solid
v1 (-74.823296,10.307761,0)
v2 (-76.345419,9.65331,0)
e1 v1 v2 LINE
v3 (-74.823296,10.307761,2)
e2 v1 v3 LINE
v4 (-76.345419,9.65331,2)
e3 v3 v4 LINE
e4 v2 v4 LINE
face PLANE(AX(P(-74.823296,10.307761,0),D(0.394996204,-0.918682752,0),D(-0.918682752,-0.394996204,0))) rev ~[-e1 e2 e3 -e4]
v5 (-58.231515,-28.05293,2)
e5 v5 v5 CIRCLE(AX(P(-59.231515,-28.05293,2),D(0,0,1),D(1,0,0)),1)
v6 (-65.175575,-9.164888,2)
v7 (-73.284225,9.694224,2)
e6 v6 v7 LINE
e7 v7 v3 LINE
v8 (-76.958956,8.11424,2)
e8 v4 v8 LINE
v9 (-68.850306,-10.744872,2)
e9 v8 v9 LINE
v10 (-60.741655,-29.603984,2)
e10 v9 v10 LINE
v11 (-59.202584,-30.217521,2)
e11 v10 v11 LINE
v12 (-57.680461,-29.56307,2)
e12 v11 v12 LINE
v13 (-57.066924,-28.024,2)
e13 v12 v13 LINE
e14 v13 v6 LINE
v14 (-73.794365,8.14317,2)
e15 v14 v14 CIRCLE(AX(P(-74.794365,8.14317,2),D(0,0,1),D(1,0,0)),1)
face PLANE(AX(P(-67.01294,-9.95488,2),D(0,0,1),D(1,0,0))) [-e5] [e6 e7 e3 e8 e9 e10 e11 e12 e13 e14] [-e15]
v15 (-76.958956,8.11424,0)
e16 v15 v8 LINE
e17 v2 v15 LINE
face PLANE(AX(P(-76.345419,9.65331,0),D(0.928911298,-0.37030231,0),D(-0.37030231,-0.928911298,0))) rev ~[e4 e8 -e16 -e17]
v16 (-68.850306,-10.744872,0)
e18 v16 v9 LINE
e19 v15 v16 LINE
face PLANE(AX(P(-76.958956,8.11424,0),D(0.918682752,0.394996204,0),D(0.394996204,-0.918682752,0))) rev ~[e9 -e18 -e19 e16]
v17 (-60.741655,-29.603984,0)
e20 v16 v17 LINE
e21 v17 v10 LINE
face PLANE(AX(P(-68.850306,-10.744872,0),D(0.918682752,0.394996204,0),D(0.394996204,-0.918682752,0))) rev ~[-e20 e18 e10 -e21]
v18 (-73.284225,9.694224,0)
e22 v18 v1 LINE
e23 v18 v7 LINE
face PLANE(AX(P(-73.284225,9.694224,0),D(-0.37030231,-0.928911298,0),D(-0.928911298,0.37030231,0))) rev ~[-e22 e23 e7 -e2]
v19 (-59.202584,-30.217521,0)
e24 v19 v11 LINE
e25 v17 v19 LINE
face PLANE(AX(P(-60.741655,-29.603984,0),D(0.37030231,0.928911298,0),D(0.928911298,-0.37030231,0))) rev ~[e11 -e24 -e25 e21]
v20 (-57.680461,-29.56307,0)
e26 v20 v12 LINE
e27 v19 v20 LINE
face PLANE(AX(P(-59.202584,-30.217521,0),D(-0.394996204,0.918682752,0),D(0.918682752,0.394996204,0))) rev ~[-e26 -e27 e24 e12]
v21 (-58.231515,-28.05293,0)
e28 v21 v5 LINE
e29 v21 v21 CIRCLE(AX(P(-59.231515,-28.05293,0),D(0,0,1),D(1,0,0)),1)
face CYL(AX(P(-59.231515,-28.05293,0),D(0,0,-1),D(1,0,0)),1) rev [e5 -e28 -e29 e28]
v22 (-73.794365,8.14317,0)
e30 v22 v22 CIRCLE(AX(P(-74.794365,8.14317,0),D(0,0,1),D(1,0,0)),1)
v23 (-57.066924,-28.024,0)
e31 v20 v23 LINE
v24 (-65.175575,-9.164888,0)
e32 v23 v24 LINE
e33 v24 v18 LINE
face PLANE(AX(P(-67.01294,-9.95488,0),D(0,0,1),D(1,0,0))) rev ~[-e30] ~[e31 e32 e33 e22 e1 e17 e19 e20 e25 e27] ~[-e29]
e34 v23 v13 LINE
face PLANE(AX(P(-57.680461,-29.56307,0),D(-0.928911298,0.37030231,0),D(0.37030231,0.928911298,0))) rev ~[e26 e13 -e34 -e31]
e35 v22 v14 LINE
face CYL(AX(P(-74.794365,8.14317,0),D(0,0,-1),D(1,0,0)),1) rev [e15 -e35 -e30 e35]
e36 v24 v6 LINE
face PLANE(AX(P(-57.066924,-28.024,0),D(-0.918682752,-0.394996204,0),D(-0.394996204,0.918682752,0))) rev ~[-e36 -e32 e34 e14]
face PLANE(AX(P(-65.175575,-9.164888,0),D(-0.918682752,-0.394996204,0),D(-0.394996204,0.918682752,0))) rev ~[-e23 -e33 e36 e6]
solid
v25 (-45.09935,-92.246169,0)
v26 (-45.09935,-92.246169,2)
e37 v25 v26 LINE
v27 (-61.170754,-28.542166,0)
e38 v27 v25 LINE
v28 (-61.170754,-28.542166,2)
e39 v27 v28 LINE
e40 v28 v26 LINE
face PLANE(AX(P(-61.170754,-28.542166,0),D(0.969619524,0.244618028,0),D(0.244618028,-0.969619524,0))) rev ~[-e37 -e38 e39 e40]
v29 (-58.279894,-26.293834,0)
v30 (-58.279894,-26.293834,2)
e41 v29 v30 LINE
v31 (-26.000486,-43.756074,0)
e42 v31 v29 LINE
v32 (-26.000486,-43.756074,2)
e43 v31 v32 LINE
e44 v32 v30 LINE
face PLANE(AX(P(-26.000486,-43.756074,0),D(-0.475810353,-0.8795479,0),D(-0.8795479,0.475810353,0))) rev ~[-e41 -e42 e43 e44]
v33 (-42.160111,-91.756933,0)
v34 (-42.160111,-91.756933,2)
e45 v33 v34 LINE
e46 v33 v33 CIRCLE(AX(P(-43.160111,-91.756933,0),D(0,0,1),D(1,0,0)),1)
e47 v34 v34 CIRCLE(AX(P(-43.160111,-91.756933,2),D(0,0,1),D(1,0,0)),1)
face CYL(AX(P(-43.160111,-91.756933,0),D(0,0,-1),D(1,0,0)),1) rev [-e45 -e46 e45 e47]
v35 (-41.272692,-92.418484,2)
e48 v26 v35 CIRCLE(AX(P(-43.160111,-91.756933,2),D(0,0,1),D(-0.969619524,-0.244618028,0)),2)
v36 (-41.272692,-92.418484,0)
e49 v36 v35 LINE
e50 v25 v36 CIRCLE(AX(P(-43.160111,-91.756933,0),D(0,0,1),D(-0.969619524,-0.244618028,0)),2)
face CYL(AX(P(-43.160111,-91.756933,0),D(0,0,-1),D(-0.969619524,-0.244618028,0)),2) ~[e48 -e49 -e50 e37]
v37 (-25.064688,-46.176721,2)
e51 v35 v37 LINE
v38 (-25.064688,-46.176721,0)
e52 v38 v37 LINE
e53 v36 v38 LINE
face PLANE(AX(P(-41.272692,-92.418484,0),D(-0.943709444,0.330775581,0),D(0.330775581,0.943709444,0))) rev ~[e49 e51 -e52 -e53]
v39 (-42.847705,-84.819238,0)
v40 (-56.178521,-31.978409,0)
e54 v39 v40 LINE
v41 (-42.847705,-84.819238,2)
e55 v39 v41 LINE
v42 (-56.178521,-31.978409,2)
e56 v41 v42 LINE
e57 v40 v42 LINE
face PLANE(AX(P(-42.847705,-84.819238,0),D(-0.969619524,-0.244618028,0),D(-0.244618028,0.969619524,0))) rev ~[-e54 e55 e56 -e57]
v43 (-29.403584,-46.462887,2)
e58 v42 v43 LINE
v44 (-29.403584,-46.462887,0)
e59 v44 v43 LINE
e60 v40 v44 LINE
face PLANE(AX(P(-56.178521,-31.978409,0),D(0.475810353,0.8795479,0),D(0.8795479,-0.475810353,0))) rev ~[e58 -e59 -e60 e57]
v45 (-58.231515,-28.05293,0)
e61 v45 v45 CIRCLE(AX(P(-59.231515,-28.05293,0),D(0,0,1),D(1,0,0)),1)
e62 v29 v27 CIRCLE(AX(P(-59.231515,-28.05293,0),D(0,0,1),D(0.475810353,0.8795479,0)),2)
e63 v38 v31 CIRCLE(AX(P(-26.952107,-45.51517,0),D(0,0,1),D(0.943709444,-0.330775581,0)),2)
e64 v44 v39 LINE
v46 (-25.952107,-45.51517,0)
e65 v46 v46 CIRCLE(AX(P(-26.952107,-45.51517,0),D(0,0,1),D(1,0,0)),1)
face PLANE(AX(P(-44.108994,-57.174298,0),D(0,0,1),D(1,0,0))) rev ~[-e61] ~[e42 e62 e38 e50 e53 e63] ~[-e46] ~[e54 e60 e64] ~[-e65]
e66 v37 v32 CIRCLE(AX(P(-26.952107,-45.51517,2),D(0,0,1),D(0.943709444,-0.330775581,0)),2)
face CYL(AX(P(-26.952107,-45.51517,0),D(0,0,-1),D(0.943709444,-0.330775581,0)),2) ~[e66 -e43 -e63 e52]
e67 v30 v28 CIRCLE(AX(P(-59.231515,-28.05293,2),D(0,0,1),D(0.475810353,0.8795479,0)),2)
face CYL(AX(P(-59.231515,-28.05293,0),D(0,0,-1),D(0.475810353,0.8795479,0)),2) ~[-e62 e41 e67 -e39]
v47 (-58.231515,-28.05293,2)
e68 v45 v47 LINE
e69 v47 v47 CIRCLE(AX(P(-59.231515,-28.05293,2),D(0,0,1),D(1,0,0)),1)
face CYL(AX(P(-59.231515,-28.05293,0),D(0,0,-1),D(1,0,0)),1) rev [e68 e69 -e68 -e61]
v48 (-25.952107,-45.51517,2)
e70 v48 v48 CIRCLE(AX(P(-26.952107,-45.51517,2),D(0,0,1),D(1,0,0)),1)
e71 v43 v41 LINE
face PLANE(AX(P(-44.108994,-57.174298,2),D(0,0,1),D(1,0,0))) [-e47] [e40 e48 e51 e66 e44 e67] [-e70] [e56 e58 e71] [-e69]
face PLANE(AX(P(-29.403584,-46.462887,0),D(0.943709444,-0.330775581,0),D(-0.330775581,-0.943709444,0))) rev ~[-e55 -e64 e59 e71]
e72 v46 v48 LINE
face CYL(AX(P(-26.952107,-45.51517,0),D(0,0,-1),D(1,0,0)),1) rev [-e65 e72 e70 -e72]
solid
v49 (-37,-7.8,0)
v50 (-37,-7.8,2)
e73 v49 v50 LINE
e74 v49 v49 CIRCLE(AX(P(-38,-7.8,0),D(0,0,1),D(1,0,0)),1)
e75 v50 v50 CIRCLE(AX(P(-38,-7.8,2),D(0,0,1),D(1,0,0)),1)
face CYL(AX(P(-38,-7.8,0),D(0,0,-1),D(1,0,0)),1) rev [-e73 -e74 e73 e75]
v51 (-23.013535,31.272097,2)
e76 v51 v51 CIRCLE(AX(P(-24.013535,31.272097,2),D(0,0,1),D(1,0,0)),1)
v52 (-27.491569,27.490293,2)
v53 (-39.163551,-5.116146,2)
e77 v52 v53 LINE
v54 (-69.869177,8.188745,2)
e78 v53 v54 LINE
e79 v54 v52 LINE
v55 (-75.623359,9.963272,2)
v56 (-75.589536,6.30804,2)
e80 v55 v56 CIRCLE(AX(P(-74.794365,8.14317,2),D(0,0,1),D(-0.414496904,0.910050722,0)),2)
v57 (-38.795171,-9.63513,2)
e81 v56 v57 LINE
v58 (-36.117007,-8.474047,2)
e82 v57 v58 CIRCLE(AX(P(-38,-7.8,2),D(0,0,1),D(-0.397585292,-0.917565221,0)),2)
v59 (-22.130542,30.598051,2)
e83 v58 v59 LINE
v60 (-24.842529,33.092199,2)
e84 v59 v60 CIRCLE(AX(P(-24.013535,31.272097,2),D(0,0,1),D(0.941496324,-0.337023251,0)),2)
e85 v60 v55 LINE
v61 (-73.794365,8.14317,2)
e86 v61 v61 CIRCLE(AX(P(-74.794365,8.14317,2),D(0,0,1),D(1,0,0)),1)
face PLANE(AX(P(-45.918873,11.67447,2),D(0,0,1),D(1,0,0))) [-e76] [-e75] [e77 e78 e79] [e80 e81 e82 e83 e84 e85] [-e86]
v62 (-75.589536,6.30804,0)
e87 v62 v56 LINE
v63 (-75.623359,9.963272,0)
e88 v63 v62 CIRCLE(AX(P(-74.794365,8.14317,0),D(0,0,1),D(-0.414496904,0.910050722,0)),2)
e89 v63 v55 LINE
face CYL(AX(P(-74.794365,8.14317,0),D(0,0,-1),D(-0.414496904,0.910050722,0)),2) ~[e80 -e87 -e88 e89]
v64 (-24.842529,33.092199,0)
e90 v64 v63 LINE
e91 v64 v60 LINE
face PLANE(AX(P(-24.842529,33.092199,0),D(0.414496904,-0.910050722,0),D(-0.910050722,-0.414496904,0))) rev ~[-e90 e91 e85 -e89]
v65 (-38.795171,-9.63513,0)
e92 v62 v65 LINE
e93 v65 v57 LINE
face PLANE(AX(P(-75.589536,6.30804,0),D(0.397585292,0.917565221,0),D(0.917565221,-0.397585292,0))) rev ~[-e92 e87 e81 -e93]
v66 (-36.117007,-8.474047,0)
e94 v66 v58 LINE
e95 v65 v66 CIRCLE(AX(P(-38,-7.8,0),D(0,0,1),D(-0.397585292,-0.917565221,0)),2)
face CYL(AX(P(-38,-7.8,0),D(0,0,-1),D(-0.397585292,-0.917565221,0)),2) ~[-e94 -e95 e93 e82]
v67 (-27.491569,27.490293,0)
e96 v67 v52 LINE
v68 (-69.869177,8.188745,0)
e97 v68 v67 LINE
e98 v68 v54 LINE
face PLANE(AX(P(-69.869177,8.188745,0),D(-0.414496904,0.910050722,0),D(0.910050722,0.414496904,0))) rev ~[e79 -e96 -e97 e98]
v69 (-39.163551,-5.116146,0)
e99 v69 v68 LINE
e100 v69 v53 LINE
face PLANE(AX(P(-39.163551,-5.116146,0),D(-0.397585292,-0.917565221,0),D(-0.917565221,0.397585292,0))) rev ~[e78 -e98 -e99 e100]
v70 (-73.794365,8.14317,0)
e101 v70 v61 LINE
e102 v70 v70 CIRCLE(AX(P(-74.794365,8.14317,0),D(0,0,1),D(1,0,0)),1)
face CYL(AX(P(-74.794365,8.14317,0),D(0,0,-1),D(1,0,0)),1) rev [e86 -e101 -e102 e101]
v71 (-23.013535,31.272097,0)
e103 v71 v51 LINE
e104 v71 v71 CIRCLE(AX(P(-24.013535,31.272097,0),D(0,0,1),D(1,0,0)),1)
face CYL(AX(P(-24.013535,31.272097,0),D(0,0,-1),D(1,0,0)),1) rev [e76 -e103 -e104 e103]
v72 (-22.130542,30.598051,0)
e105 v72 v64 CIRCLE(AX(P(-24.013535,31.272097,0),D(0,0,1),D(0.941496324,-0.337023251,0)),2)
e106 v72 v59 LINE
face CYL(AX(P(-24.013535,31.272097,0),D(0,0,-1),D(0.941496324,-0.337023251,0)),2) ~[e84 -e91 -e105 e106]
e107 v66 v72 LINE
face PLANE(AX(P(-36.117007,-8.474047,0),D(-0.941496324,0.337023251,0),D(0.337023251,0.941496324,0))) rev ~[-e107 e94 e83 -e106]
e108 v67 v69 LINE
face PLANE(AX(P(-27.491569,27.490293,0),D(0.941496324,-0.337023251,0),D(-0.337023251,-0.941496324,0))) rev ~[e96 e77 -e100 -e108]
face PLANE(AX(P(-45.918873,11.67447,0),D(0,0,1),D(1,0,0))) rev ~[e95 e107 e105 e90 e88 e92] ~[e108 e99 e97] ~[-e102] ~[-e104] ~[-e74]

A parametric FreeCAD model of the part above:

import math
import FreeCAD as App
import Part
import Sketcher
Q = App.Units.Quantity


def add_polygon(sketch, points):
    """Adds a closed chain of lines whose ends are joined by coincident constraints."""
    first, n = sketch.GeometryCount, len(points)
    for a, b in zip(points, points[1:] + points[:1]):
        sketch.addGeometry(Part.LineSegment(App.Vector(*a, 0), App.Vector(*b, 0)), False)
    for i in range(n):
        sketch.addConstraint(Sketcher.Constraint("Coincident", first + i, 2, first + (i + 1) % n, 1))

doc = App.newDocument("Part")
body = doc.addObject("PartDesign::Body", "Body")

sketch1 = doc.addObject("Sketcher::SketchObject", "Sketch")
body.addObject(sketch1)
sketch1.AttachmentSupport = (doc.XY_Plane, [""])
sketch1.MapMode = "FlatFace"
sketch1.addGeometry(Part.LineSegment(App.Vector(-24.842529, 33.092199, 0), App.Vector(-75.623359, 9.963272, 0)), False)
sketch1.addGeometry(Part.ArcOfCircle(Part.Circle(App.Vector(-74.794365, 8.14317, 0), App.Vector(0, 0, 1), 2), math.radians(114.487638), math.radians(246.57269)), False)
sketch1.addGeometry(Part.LineSegment(App.Vector(-75.589536, 6.30804, 0), App.Vector(-38.795171, -9.63513, 0)), False)
sketch1.addGeometry(Part.ArcOfCircle(Part.Circle(App.Vector(-38, -7.8, 0), App.Vector(0, 0, 1), 2), math.radians(-113.42731), math.radians(-19.695618)), False)
sketch1.addGeometry(Part.LineSegment(App.Vector(-36.117007, -8.474047, 0), App.Vector(-22.130542, 30.598051, 0)), False)
sketch1.addGeometry(Part.ArcOfCircle(Part.Circle(App.Vector(-24.013535, 31.272097, 0), App.Vector(0, 0, 1), 2), math.radians(-19.695618), math.radians(114.487638)), False)
sketch1.addGeometry(Part.Circle(App.Vector(-74.794365, 8.14317, 0), App.Vector(0, 0, 1), 1), False)
sketch1.addGeometry(Part.Circle(App.Vector(-38, -7.8, 0), App.Vector(0, 0, 1), 1), False)
add_polygon(sketch1, [(-27.491569, 27.490293), (-39.163551, -5.116146), (-69.869177, 8.188745)])
sketch1.addGeometry(Part.Circle(App.Vector(-24.013535, 31.272097, 0), App.Vector(0, 0, 1), 1), False)
sketch1.addConstraint(Sketcher.Constraint("Tangent", 0, 2, 1, 1))
sketch1.addConstraint(Sketcher.Constraint("Tangent", 1, 2, 2, 1))
sketch1.addConstraint(Sketcher.Constraint("Tangent", 2, 2, 3, 1))
sketch1.addConstraint(Sketcher.Constraint("Tangent", 3, 2, 4, 1))
sketch1.addConstraint(Sketcher.Constraint("Tangent", 4, 2, 5, 1))
sketch1.addConstraint(Sketcher.Constraint("Tangent", 5, 2, 0, 1))
sketch1.addConstraint(Sketcher.Constraint("Coincident", 6, 3, 1, 3))
sketch1.addConstraint(Sketcher.Constraint("Coincident", 7, 3, 3, 3))
sketch1.addConstraint(Sketcher.Constraint("Coincident", 11, 3, 5, 3))
sketch1.addConstraint(Sketcher.Constraint("Equal", 1, 3))
sketch1.addConstraint(Sketcher.Constraint("Equal", 3, 5))
sketch1.addConstraint(Sketcher.Constraint("Equal", 6, 7))
sketch1.addConstraint(Sketcher.Constraint("Equal", 7, 11))
sketch1.addConstraint(Sketcher.Constraint("Parallel", 4, 8))
sketch1.addConstraint(Sketcher.Constraint("Parallel", 2, 9))
sketch1.addConstraint(Sketcher.Constraint("Parallel", 0, 10))
sketch1.addConstraint(Sketcher.Constraint("Diameter", 6, Q("2 mm")))
sketch1.addConstraint(Sketcher.Constraint("Radius", 1, Q("2 mm")))
sketch1.addConstraint(Sketcher.Constraint("DistanceX", 3, 3, -1, 1, Q("38 mm")))
sketch1.addConstraint(Sketcher.Constraint("Distance", 0, Q("55.8 mm")))
sketch1.addConstraint(Sketcher.Constraint("Distance", 2, Q("40.1 mm")))
sketch1.addConstraint(Sketcher.Constraint("Distance", 4, Q("41.5 mm")))
sketch1.addConstraint(Sketcher.Constraint("DistanceY", 3, 3, -1, 1, Q("7.8 mm")))
sketch1.addConstraint(Sketcher.Constraint("DistanceY", -1, 1, 5, 2, Q("33.092199 mm")))
sketch1.addConstraint(Sketcher.Constraint("DistanceY", 3, 2, 8, 2, Q("3.3579 mm")))
sketch1.addConstraint(Sketcher.Constraint("Distance", 8, Q("34.632572 mm")))
sketch1.addConstraint(Sketcher.Constraint("DistanceX", 8, 2, -1, 1, Q("39.163551 mm")))
pad1 = doc.addObject("PartDesign::Pad", "Pad")
body.addObject(pad1)
pad1.Profile = sketch1
pad1.Length = 2
body2 = doc.addObject("PartDesign::Body", "Body001")

sketch2 = doc.addObject("Sketcher::SketchObject", "Sketch001")
body2.addObject(sketch2)
sketch2.AttachmentSupport = (doc.getObject("XY_Plane001"), [""])
sketch2.MapMode = "FlatFace"
sketch2.addGeometry(Part.LineSegment(App.Vector(-26.000486, -43.756074, 0), App.Vector(-58.279894, -26.293834, 0)), False)
sketch2.addGeometry(Part.ArcOfCircle(Part.Circle(App.Vector(-59.231515, -28.05293, 0), App.Vector(0, 0, 1), 2), math.radians(61.587875), math.radians(194.159262)), False)
sketch2.addGeometry(Part.LineSegment(App.Vector(-61.170754, -28.542166, 0), App.Vector(-45.09935, -92.246169, 0)), False)
sketch2.addGeometry(Part.ArcOfCircle(Part.Circle(App.Vector(-43.160111, -91.756933, 0), App.Vector(0, 0, 1), 2), math.radians(-165.840738), math.radians(-19.315857)), False)
sketch2.addGeometry(Part.LineSegment(App.Vector(-41.272692, -92.418484, 0), App.Vector(-25.064688, -46.176721, 0)), False)
sketch2.addGeometry(Part.ArcOfCircle(Part.Circle(App.Vector(-26.952107, -45.51517, 0), App.Vector(0, 0, 1), 2), math.radians(-19.315857), math.radians(61.587875)), False)
sketch2.addGeometry(Part.Circle(App.Vector(-43.160111, -91.756933, 0), App.Vector(0, 0, 1), 1), False)
sketch2.addGeometry(Part.Circle(App.Vector(-59.231515, -28.05293, 0), App.Vector(0, 0, 1), 1), False)
add_polygon(sketch2, [(-29.403584, -46.462887), (-42.847705, -84.819238), (-56.178521, -31.978409)])
sketch2.addGeometry(Part.Circle(App.Vector(-26.952107, -45.51517, 0), App.Vector(0, 0, 1), 1), False)
sketch2.addConstraint(Sketcher.Constraint("Tangent", 0, 2, 1, 1))
sketch2.addConstraint(Sketcher.Constraint("Tangent", 1, 2, 2, 1))
sketch2.addConstraint(Sketcher.Constraint("Tangent", 2, 2, 3, 1))
sketch2.addConstraint(Sketcher.Constraint("Tangent", 3, 2, 4, 1))
sketch2.addConstraint(Sketcher.Constraint("Tangent", 4, 2, 5, 1))
sketch2.addConstraint(Sketcher.Constraint("Tangent", 5, 2, 0, 1))
sketch2.addConstraint(Sketcher.Constraint("Coincident", 6, 3, 3, 3))
sketch2.addConstraint(Sketcher.Constraint("Coincident", 7, 3, 1, 3))
sketch2.addConstraint(Sketcher.Constraint("Coincident", 11, 3, 5, 3))
sketch2.addConstraint(Sketcher.Constraint("Equal", 1, 3))
sketch2.addConstraint(Sketcher.Constraint("Equal", 3, 5))
sketch2.addConstraint(Sketcher.Constraint("Equal", 6, 7))
sketch2.addConstraint(Sketcher.Constraint("Equal", 7, 11))
sketch2.addConstraint(Sketcher.Constraint("Parallel", 4, 8))
sketch2.addConstraint(Sketcher.Constraint("Parallel", 2, 9))
sketch2.addConstraint(Sketcher.Constraint("Parallel", 0, 10))
sketch2.addConstraint(Sketcher.Constraint("Diameter", 6, Q("2 mm")))
sketch2.addConstraint(Sketcher.Constraint("Radius", 1, Q("2 mm")))
sketch2.addConstraint(Sketcher.Constraint("Distance", 4, Q("49 mm")))
sketch2.addConstraint(Sketcher.Constraint("Distance", 0, Q("36.7 mm")))
sketch2.addConstraint(Sketcher.Constraint("Distance", 2, Q("65.7 mm")))
sketch2.addConstraint(Sketcher.Constraint("DistanceY", 2, 2, 5, 3, Q("46.730999 mm")))
sketch2.addConstraint(Sketcher.Constraint("DistanceY", 1, 3, -1, 1, Q("28.05293 mm")))
sketch2.addConstraint(Sketcher.Constraint("DistanceX", 3, 3, -1, 1, Q("43.160111 mm")))
sketch2.addConstraint(Sketcher.Constraint("DistanceX", 9, 2, -1, 1, Q("56.178521 mm")))
sketch2.addConstraint(Sketcher.Constraint("DistanceY", 9, 2, -1, 1, Q("31.978409 mm")))
sketch2.addConstraint(Sketcher.Constraint("DistanceY", 2, 2, 8, 2, Q("7.426931 mm")))
pad2 = doc.addObject("PartDesign::Pad", "Pad001")
body2.addObject(pad2)
pad2.Profile = sketch2
pad2.Length = 2
body3 = doc.addObject("PartDesign::Body", "Body002")

sketch3 = doc.addObject("Sketcher::SketchObject", "Sketch002")
body3.addObject(sketch3)
sketch3.AttachmentSupport = (doc.getObject("XY_Plane002"), [""])
sketch3.MapMode = "FlatFace"
add_polygon(sketch3, [(-76.345419, 9.65331), (-76.958956, 8.11424), (-68.850306, -10.744872), (-60.741655, -29.603984), (-59.202584, -30.217521), (-57.680461, -29.56307), (-57.066924, -28.024), (-65.175575, -9.164888), (-73.284225, 9.694224), (-74.823296, 10.307761)])
sketch3.addGeometry(Part.Circle(App.Vector(-59.231515, -28.05293, 0), App.Vector(0, 0, 1), 1), False)
sketch3.addGeometry(Part.Circle(App.Vector(-74.794365, 8.14317, 0), App.Vector(0, 0, 1), 1), False)
sketch3.addConstraint(Sketcher.Constraint("Equal", 10, 11))
sketch3.addConstraint(Sketcher.Constraint("Parallel", 1, 2))
sketch3.addConstraint(Sketcher.Constraint("Perpendicular", 0, 3))
sketch3.addConstraint(Sketcher.Constraint("Perpendicular", 2, 4))
sketch3.addConstraint(Sketcher.Constraint("Perpendicular", 3, 5))
sketch3.addConstraint(Sketcher.Constraint("Perpendicular", 4, 6))
sketch3.addConstraint(Sketcher.Constraint("Parallel", 6, 7))
sketch3.addConstraint(Sketcher.Constraint("Perpendicular", 5, 8))
sketch3.addConstraint(Sketcher.Constraint("Perpendicular", 7, 9))
sketch3.addConstraint(Sketcher.Constraint("Equal", 1, 2))
sketch3.addConstraint(Sketcher.Constraint("Equal", 0, 3))
sketch3.addConstraint(Sketcher.Constraint("Equal", 3, 4))
sketch3.addConstraint(Sketcher.Constraint("Equal", 4, 5))
sketch3.addConstraint(Sketcher.Constraint("Equal", 2, 6))
sketch3.addConstraint(Sketcher.Constraint("Equal", 6, 7))
sketch3.addConstraint(Sketcher.Constraint("Diameter", 10, Q("2 mm")))
sketch3.addConstraint(Sketcher.Constraint("DistanceY", 5, 2, -1, 1, Q("28.024 mm")))
sketch3.addConstraint(Sketcher.Constraint("DistanceY", 10, 3, 11, 3, Q("36.1961 mm")))
sketch3.addConstraint(Sketcher.Constraint("DistanceX", 0, 2, 2, 2, Q("16.217302 mm")))
sketch3.addConstraint(Sketcher.Constraint("DistanceY", 10, 3, -1, 1, Q("28.05293 mm")))
sketch3.addConstraint(Sketcher.Constraint("DistanceY", -1, 1, 0, 2, Q("8.11424 mm")))
sketch3.addConstraint(Sketcher.Constraint("DistanceY", 3, 2, -1, 1, Q("30.217521 mm")))
sketch3.addConstraint(Sketcher.Constraint("DistanceX", 4, 2, -1, 1, Q("57.680461 mm")))
sketch3.addConstraint(Sketcher.Constraint("DistanceY", 4, 2, -1, 1, Q("29.56307 mm")))
sketch3.addConstraint(Sketcher.Constraint("DistanceX", 11, 3, 10, 3, Q("15.56285 mm")))
sketch3.addConstraint(Sketcher.Constraint("DistanceX", 0, 2, 11, 3, Q("2.164591 mm")))
pad3 = doc.addObject("PartDesign::Pad", "Pad002")
body3.addObject(pad3)
pad3.Profile = sketch3
pad3.Length = 2

doc.recompute()
